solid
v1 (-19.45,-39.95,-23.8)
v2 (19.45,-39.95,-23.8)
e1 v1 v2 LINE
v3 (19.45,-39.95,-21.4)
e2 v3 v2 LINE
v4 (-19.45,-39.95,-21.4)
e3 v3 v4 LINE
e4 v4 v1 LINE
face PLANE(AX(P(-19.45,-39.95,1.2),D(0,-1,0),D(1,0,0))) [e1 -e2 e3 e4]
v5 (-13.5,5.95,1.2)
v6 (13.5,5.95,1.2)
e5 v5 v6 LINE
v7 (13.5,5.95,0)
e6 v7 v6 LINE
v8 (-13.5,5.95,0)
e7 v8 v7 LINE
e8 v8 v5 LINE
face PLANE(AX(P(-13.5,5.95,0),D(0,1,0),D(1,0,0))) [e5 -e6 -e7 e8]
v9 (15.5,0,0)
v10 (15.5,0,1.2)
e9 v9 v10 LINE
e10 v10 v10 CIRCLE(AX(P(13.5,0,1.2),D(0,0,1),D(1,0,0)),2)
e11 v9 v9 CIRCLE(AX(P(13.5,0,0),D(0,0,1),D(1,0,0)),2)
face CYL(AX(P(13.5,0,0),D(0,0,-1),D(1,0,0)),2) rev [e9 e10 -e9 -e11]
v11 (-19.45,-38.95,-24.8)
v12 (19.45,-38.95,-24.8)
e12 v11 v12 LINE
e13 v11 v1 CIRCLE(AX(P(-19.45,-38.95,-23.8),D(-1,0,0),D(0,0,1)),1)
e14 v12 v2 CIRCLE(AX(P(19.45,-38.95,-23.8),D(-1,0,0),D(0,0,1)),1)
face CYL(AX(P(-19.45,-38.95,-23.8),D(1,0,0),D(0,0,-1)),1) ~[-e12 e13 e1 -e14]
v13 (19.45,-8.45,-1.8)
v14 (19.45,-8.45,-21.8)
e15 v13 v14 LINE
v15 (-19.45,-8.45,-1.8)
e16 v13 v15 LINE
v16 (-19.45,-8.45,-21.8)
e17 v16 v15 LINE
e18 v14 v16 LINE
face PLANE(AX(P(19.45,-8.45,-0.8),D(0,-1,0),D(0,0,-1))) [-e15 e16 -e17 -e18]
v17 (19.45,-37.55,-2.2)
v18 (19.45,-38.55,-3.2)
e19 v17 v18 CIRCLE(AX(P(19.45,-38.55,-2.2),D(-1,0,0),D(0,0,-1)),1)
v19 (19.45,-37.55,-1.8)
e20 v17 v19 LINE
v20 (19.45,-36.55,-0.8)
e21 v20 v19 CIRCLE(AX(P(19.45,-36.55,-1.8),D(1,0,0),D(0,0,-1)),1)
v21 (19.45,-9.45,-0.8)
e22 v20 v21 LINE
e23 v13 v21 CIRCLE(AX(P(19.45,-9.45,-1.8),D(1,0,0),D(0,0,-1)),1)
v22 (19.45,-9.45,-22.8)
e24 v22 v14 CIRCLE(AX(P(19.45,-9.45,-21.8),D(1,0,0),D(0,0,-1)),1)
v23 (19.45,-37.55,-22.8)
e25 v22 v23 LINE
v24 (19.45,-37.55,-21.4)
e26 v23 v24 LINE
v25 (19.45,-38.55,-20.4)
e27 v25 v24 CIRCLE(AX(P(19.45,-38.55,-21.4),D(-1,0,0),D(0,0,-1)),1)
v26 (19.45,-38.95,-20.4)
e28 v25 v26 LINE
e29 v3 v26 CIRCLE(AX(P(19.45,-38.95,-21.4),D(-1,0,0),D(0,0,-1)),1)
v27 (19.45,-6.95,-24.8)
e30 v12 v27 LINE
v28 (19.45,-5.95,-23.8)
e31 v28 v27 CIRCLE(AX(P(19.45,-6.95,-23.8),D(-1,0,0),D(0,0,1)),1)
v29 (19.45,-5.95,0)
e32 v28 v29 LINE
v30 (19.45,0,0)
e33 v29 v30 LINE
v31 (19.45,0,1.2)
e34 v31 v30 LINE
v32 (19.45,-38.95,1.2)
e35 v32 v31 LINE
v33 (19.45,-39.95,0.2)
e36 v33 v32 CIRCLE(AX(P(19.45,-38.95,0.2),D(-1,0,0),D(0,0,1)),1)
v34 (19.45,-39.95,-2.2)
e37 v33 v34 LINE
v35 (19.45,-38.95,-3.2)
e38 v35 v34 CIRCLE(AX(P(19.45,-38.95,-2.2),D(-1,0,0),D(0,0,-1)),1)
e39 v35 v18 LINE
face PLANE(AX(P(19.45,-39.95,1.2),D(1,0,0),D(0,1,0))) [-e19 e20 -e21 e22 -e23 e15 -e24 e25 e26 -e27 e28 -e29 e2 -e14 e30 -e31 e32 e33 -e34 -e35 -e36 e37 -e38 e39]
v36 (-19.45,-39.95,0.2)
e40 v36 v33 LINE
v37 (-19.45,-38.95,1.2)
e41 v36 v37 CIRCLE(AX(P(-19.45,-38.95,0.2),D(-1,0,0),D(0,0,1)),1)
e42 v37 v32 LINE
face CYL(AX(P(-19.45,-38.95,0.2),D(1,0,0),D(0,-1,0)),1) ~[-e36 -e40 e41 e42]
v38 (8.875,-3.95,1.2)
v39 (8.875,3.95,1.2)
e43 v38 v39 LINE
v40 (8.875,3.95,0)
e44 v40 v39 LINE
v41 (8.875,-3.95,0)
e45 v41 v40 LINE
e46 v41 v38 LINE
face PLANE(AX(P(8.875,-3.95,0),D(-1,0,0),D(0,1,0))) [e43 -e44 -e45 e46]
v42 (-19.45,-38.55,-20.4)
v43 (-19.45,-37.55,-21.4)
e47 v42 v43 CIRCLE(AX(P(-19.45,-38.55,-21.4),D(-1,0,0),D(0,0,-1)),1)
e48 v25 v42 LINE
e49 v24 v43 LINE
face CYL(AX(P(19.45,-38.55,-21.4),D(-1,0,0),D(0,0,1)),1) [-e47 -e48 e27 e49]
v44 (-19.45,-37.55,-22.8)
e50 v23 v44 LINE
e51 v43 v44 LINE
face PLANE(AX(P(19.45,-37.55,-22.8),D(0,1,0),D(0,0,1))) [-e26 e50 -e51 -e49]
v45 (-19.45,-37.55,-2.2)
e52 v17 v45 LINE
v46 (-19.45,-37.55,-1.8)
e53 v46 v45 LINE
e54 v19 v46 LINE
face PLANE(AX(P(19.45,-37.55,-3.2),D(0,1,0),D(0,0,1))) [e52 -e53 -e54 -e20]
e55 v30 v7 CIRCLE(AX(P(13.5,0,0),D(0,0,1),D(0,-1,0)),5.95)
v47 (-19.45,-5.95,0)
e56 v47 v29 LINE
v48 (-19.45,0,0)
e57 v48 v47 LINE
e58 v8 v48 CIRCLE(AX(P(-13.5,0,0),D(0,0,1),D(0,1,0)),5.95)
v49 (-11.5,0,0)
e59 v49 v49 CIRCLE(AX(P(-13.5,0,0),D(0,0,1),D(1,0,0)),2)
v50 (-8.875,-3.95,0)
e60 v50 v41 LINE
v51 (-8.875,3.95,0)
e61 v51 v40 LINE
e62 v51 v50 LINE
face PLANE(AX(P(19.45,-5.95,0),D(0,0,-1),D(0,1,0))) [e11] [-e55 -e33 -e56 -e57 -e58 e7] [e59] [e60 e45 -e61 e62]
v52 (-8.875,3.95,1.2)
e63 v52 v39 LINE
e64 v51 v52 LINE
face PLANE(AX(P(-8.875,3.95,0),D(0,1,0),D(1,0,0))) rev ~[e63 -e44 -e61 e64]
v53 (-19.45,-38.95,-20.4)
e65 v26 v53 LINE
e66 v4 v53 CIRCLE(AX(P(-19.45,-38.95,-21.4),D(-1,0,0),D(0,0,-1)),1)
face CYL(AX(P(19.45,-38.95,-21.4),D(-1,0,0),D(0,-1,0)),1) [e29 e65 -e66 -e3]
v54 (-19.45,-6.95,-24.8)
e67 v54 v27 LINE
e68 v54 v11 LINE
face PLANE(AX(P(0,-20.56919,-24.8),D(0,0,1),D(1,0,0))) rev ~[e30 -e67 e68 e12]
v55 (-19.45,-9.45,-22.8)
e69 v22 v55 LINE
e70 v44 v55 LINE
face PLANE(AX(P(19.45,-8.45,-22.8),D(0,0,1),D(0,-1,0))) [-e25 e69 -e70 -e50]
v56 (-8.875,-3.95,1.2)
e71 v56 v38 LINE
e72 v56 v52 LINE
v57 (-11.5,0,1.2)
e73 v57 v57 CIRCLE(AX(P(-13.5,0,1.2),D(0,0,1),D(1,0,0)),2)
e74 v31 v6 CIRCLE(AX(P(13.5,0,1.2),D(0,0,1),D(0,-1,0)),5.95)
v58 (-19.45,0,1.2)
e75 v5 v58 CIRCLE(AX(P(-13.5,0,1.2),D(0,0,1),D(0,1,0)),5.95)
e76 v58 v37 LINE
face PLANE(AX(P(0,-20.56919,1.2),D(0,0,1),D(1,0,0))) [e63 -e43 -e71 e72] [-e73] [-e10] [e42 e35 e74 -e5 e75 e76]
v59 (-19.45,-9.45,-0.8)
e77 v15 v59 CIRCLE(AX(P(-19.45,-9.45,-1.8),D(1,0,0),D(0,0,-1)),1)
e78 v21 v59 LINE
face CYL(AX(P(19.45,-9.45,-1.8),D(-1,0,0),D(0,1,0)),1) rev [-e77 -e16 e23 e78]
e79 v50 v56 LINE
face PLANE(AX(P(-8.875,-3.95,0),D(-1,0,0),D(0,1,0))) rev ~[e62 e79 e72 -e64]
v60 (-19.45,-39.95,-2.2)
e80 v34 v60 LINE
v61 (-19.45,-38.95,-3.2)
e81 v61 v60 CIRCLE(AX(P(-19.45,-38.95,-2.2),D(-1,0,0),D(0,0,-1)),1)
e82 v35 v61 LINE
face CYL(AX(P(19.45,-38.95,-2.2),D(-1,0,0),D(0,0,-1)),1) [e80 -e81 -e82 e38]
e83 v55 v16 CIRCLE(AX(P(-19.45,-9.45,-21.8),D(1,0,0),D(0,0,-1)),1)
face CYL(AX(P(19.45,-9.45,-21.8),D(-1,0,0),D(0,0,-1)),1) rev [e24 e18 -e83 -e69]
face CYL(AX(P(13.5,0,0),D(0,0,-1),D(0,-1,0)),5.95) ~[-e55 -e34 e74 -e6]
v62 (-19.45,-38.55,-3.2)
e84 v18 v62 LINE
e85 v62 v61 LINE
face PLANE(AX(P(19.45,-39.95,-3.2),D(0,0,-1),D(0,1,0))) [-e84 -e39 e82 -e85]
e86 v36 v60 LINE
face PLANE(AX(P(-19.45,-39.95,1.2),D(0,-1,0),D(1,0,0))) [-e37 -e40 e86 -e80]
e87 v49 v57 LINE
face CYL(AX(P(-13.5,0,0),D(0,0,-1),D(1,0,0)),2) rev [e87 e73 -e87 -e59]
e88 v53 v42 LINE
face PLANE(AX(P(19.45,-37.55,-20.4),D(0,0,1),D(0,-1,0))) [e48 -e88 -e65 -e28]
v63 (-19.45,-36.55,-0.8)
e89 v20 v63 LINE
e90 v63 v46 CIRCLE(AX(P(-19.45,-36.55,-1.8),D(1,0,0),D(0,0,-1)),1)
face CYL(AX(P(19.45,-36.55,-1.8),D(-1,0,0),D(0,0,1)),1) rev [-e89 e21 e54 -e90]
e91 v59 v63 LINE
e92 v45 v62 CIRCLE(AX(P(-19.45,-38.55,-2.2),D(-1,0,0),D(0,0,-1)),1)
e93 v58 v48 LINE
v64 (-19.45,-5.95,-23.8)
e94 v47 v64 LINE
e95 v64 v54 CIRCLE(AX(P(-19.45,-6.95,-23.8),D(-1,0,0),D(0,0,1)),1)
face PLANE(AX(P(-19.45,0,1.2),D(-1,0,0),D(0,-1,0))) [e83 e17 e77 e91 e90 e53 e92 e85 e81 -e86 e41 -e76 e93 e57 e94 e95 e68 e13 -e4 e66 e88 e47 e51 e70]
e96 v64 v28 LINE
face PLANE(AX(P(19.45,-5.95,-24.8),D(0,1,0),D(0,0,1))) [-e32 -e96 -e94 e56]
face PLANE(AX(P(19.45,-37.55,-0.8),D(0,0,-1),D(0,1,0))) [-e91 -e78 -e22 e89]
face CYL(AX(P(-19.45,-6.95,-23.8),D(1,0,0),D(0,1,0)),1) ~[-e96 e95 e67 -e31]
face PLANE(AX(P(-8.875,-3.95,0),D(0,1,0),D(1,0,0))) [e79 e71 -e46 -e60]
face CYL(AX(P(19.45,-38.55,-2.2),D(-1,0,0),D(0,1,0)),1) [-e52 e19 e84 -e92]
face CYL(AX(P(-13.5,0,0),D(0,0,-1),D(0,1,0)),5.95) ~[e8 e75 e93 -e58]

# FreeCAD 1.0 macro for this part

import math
import FreeCAD as App
import Part
import Sketcher

V = App.Vector
Q = App.Units.Quantity


def edges_at(feature, points):
    """Names of the edges that pass closest to the given points."""
    edges = feature.Shape.Edges
    near = lambda p: min(range(len(edges)), key=lambda i: edges[i].distToShape(Part.Vertex(*p))[0])
    return sorted({f"Edge{near(p) + 1}" for p in points})


def add_polygon(sketch, points):
    """Adds a closed chain of lines whose ends are joined by coincident constraints."""
    first, n = sketch.GeometryCount, len(points)
    for a, b in zip(points, points[1:] + points[:1]):
        sketch.addGeometry(Part.LineSegment(App.Vector(*a, 0), App.Vector(*b, 0)), False)
    for i in range(n):
        sketch.addConstraint(Sketcher.Constraint("Coincident", first + i, 2, first + (i + 1) % n, 1))

doc = App.newDocument("Part")
body = doc.addObject("PartDesign::Body", "Body")

sketch1 = body.newObject("Sketcher::SketchObject", "Sketch")
sketch1.AttachmentSupport = (doc.getObject("XY_Plane"), [""])
sketch1.MapMode = "FlatFace"
sketch1.addGeometry(Part.ArcOfCircle(Part.Circle(V(-13.5, 0, 0), V(0, 0, 1), 6), math.radians(90), math.radians(270)), False)
sketch1.addGeometry(Part.LineSegment(V(-13.5, -6, 0), V(13.5, -6, 0)), False)
sketch1.addGeometry(Part.ArcOfCircle(Part.Circle(V(13.5, 0, 0), V(0, 0, 1), 6), math.radians(-90), math.radians(90)), False)
sketch1.addGeometry(Part.LineSegment(V(13.5, 6, 0), V(-13.5, 6, 0)), False)
sketch1.addGeometry(Part.Circle(V(-13.5, 0, 0), V(0, 0, 1), 2), False)
add_polygon(sketch1, [(8.9, -4), (-8.9, -4), (-8.9, 4), (8.9, 4)])
sketch1.addGeometry(Part.Circle(V(13.5, 0, 0), V(0, 0, 1), 2), False)
sketch1.addConstraint(Sketcher.Constraint("Tangent", 0, 2, 1, 1))
sketch1.addConstraint(Sketcher.Constraint("Tangent", 1, 2, 2, 1))
sketch1.addConstraint(Sketcher.Constraint("Tangent", 2, 2, 3, 1))
sketch1.addConstraint(Sketcher.Constraint("Tangent", 3, 2, 0, 1))
sketch1.addConstraint(Sketcher.Constraint("Horizontal", 1))
sketch1.addConstraint(Sketcher.Constraint("Horizontal", 3))
sketch1.addConstraint(Sketcher.Constraint("Horizontal", 5))
sketch1.addConstraint(Sketcher.Constraint("Vertical", 6))
sketch1.addConstraint(Sketcher.Constraint("Horizontal", 7))
sketch1.addConstraint(Sketcher.Constraint("Vertical", 8))
sketch1.addConstraint(Sketcher.Constraint("Coincident", 4, 3, 0, 3))
sketch1.addConstraint(Sketcher.Constraint("Coincident", 9, 3, 2, 3))
sketch1.addConstraint(Sketcher.Constraint("Equal", 4, 9))
sketch1.addConstraint(Sketcher.Constraint("Symmetric", 0, 3, 2, 3, -1, 1))
sketch1.addConstraint(Sketcher.Constraint("Symmetric", 5, 2, 7, 2, -1, 1))
sketch1.addConstraint(Sketcher.Constraint("Diameter", 4, Q("4 mm")))
sketch1.addConstraint(Sketcher.Constraint("DistanceX", 1, 1, 1, 2, Q("27 mm")))
sketch1.addConstraint(Sketcher.Constraint("Radius", 0, Q("5.95 mm")))
sketch1.addConstraint(Sketcher.Constraint("DistanceY", 6, 1, 6, 2, Q("7.9 mm")))
sketch1.addConstraint(Sketcher.Constraint("DistanceX", 5, 2, 5, 1, Q("17.75 mm")))
pad1 = body.newObject("PartDesign::Pad", "Pad")
pad1.Profile = sketch1
pad1.Length = 1.2

sketch2 = body.newObject("Sketcher::SketchObject", "Sketch001")
sketch2.AttachmentSupport = (doc.getObject("XY_Plane"), [""])
sketch2.MapMode = "FlatFace"
sketch2.AttachmentOffset = App.Placement(V(0, 0, 1.2), App.Rotation())
sketch2.addGeometry(Part.LineSegment(V(-19, 0, 0), V(-19, -40, 0)), False)
sketch2.addGeometry(Part.LineSegment(V(-19, -40, 0), V(19, -40, 0)), False)
sketch2.addGeometry(Part.LineSegment(V(19, -40, 0), V(19, 0, 0)), False)
sketch2.addGeometry(Part.ArcOfCircle(Part.Circle(V(13, 0, 0), V(0, 0, 1), 6), math.radians(-90), math.radians(0)), False)
sketch2.addGeometry(Part.LineSegment(V(14, -6, 0), V(-14, -6, 0)), False)
sketch2.addGeometry(Part.ArcOfCircle(Part.Circle(V(-13, 0, 0), V(0, 0, 1), 6), math.radians(-180), math.radians(-90)), False)
sketch2.addConstraint(Sketcher.Constraint("Coincident", 0, 2, 1, 1))
sketch2.addConstraint(Sketcher.Constraint("Coincident", 1, 2, 2, 1))
sketch2.addConstraint(Sketcher.Constraint("Tangent", 2, 2, 3, 2))
sketch2.addConstraint(Sketcher.Constraint("Tangent", 3, 1, 4, 1))
sketch2.addConstraint(Sketcher.Constraint("Tangent", 4, 2, 5, 2))
sketch2.addConstraint(Sketcher.Constraint("Tangent", 5, 1, 0, 1))
sketch2.addConstraint(Sketcher.Constraint("Vertical", 0))
sketch2.addConstraint(Sketcher.Constraint("Horizontal", 1))
sketch2.addConstraint(Sketcher.Constraint("Vertical", 2))
sketch2.addConstraint(Sketcher.Constraint("Horizontal", 4))
sketch2.addConstraint(Sketcher.Constraint("Equal", 3, 5))
sketch2.addConstraint(Sketcher.Constraint("Symmetric", 3, 3, 5, 3, -1, 1))
sketch2.addConstraint(Sketcher.Constraint("DistanceX", 4, 2, 4, 1, Q("27 mm")))
sketch2.addConstraint(Sketcher.Constraint("Radius", 3, Q("5.950001 mm")))
sketch2.addConstraint(Sketcher.Constraint("DistanceY", 1, 2, 3, 1, Q("34 mm")))
pad2 = body.newObject("PartDesign::Pad", "Pad001")
pad2.Profile = sketch2
pad2.Length = 26
pad2.Reversed = True

sketch3 = body.newObject("Sketcher::SketchObject", "Sketch002")
sketch3.AttachmentSupport = (doc.getObject("YZ_Plane"), [""])
sketch3.MapMode = "FlatFace"
sketch3.AttachmentOffset = App.Placement(V(0, 0, 19.45), App.Rotation())
add_polygon(sketch3, [(-6, 0), (-6, -24.8), (0, -24.8), (0, 0)])
add_polygon(sketch3, [(-37.5, -3.2), (-40, -3.2), (-40, -20.4), (-37.5, -20.4), (-37.5, -22.8), (-8.4, -22.8), (-8.4, -0.8), (-37.5, -0.8)])
sketch3.addConstraint(Sketcher.Constraint("Vertical", 0))
sketch3.addConstraint(Sketcher.Constraint("Horizontal", 1))
sketch3.addConstraint(Sketcher.Constraint("Vertical", 2))
sketch3.addConstraint(Sketcher.Constraint("Horizontal", 3))
sketch3.addConstraint(Sketcher.Constraint("Horizontal", 4))
sketch3.addConstraint(Sketcher.Constraint("Vertical", 5))
sketch3.addConstraint(Sketcher.Constraint("Horizontal", 6))
sketch3.addConstraint(Sketcher.Constraint("Vertical", 7))
sketch3.addConstraint(Sketcher.Constraint("Horizontal", 8))
sketch3.addConstraint(Sketcher.Constraint("Vertical", 9))
sketch3.addConstraint(Sketcher.Constraint("Horizontal", 10))
sketch3.addConstraint(Sketcher.Constraint("Vertical", 11))
sketch3.addConstraint(Sketcher.Constraint("Coincident", 2, 2, -1, 1))
sketch3.addConstraint(Sketcher.Constraint("Vertical", 7, 2, 10, 2))
sketch3.addConstraint(Sketcher.Constraint("Equal", 6, 7))
sketch3.addConstraint(Sketcher.Constraint("Equal", 7, 11))
sketch3.addConstraint(Sketcher.Constraint("DistanceY", 9, 1, 9, 2, Q("22 mm")))
sketch3.addConstraint(Sketcher.Constraint("DistanceX", 4, 2, 4, 1, Q("2.4 mm")))
sketch3.addConstraint(Sketcher.Constraint("DistanceX", 8, 1, 8, 2, Q("29.1 mm")))
sketch3.addConstraint(Sketcher.Constraint("DistanceY", 0, 2, 0, 1, Q("24.8 mm")))
sketch3.addConstraint(Sketcher.Constraint("DistanceX", 4, 2, 3, 2, Q("34 mm")))
sketch3.addConstraint(Sketcher.Constraint("DistanceY", 0, 2, 7, 2, Q("2 mm")))
sketch3.addConstraint(Sketcher.Constraint("DistanceX", 1, 1, 1, 2, Q("5.95 mm")))
pocket1 = body.newObject("PartDesign::Pocket", "Pocket")
pocket1.Profile = sketch3
pocket1.Type = "ThroughAll"
doc.recompute()

fillet = body.newObject("PartDesign::Fillet", "Fillet")
fillet.Base = (pocket1, edges_at(pocket1, [
    (0, -8.45, -22.8),
    (0, -8.45, -0.8),
    (0, -37.55, -0.8),
    (0, -37.55, -3.2),
    (0, -39.95, -3.2),
    (0, -37.55, -20.4),
    (0, -39.95, -24.8),
    (0, -5.95, -24.8),
    (0, -39.95, -20.4),
    (0, -39.95, 1.2),
]))
fillet.Radius = 1

doc.recompute()
